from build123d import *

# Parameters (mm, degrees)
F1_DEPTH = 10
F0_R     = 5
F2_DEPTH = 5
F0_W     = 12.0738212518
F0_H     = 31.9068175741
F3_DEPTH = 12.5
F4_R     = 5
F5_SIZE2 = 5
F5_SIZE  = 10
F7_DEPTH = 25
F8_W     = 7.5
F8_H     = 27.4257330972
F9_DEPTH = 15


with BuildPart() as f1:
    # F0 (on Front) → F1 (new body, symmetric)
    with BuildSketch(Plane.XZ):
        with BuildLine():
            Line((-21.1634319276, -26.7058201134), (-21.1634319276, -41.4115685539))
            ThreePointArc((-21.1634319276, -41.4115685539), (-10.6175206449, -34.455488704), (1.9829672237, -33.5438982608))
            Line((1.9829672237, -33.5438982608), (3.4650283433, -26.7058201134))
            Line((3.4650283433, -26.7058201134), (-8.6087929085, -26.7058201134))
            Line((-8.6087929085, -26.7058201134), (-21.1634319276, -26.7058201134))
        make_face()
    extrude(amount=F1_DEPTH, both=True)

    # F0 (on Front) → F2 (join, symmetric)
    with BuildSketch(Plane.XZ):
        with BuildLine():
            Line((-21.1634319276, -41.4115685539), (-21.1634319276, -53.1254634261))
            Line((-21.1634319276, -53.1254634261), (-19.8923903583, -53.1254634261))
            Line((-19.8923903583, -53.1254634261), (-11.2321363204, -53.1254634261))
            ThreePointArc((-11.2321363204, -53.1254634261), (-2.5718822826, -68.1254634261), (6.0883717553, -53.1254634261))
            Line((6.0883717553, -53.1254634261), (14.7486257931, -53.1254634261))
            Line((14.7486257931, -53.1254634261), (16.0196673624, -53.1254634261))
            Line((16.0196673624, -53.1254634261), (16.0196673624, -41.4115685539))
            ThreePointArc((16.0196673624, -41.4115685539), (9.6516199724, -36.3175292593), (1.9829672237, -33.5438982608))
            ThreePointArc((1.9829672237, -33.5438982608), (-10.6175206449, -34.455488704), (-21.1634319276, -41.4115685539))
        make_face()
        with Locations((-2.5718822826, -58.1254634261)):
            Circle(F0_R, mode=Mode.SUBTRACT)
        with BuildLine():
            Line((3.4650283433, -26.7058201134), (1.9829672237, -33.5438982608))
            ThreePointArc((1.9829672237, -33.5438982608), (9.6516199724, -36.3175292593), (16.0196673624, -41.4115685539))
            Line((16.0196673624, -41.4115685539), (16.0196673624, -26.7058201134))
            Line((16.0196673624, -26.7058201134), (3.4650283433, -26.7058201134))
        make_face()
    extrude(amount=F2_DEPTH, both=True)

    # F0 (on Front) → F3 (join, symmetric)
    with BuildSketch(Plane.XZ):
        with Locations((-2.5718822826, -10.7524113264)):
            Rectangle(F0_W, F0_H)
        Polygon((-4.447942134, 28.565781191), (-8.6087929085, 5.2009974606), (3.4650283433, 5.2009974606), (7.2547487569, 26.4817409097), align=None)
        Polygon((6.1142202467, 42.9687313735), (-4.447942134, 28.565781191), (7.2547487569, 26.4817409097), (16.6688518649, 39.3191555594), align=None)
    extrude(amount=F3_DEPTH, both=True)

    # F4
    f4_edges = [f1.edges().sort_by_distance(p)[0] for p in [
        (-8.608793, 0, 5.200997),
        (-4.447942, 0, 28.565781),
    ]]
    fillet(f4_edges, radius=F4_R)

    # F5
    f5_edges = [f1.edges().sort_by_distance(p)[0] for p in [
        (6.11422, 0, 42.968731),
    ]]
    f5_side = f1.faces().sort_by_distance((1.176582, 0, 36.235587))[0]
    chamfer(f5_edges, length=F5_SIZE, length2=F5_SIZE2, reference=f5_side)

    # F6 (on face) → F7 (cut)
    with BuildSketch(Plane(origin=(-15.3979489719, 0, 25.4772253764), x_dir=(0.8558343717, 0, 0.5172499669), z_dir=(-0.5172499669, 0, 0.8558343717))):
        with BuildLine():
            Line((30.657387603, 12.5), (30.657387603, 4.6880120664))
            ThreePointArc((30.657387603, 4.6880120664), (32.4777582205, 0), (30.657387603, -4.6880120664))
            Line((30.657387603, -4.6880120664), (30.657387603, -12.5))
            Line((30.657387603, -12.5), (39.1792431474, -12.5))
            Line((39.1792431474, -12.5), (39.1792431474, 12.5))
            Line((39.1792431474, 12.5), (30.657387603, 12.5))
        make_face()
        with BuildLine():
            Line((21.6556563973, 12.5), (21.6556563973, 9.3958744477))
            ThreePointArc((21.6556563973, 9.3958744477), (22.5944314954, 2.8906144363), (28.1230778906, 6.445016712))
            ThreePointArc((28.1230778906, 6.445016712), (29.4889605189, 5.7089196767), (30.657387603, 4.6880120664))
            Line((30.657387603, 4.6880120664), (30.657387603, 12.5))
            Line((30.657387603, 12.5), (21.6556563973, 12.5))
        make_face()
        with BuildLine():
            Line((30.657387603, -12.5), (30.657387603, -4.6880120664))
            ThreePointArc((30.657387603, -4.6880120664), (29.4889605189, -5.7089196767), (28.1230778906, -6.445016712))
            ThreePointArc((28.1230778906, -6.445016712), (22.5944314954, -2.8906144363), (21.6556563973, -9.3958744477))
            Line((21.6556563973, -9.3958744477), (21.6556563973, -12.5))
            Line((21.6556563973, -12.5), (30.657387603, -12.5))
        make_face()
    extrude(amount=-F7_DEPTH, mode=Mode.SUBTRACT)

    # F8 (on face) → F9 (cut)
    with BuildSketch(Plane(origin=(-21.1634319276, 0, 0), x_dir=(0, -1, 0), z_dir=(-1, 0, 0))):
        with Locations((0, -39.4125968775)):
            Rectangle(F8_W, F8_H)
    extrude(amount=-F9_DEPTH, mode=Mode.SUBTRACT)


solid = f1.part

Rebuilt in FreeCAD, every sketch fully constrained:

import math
import FreeCAD as App
import Part
import Sketcher
from FreeCAD import Vector


def edges_at(feature, points):
    """Names of the edges that pass closest to the given points."""
    edges = feature.Shape.Edges
    near = lambda p: min(range(len(edges)), key=lambda i: edges[i].distToShape(Part.Vertex(*p))[0])
    return sorted({f"Edge{near(p) + 1}" for p in points})

doc = App.newDocument("Part")
params = doc.addObject("Spreadsheet::Sheet", "Params")
for row, (alias, value) in enumerate([
    ("sketch1_radius", "25 mm"),
    ("pad1_length", "20 mm"),
    ("sketch2_diameter", "10 mm"),
    ("sketch2_radius", "10 mm"),
    ("sketch2_radius2", "25 mm"),
    ("pad2_length", "10 mm"),
    ("pad3_length", "25 mm"),
    ("fillet_radius", "5 mm"),
    ("chamfer_size", "10 mm"),
    ("chamfer_size2", "5 mm"),
    ("sketch4_height", "25 mm"),
    ("pocket1_length", "25 mm"),
    ("sketch5_width", "7.5 mm"),
    ("pocket2_length", "15 mm"),
], start=1):
    params.set(f"A{row}", alias)
    params.set(f"B{row}", "=" + value)
    params.setAlias(f"B{row}", alias)

body = doc.addObject("PartDesign::Body", "Body")

# Sketch on XZ plane
sketch1 = body.newObject("Sketcher::SketchObject", "Sketch")
sketch1.AttachmentSupport = (doc.getObject("XZ_Plane"), [""])
sketch1.MapMode = "FlatFace"
sketch1.addGeometry(Part.LineSegment(Vector(-21, -27, 0), Vector(-21, -41, 0)), False)
sketch1.addGeometry(Part.ArcOfCircle(Part.Circle(Vector(-3, -58, 0), Vector(0, 0, 1), 25), math.radians(80), math.radians(138)), False)
sketch1.addGeometry(Part.LineSegment(Vector(2, -34, 0), Vector(3, -27, 0)), False)
sketch1.addGeometry(Part.LineSegment(Vector(3, -27, 0), Vector(-21, -27, 0)), False)
sketch1.addConstraint(Sketcher.Constraint("Coincident", 0, 2, 1, 2))
sketch1.addConstraint(Sketcher.Constraint("Coincident", 1, 1, 2, 1))
sketch1.addConstraint(Sketcher.Constraint("Coincident", 2, 2, 3, 1))
sketch1.addConstraint(Sketcher.Constraint("Coincident", 3, 2, 0, 1))
sketch1.addConstraint(Sketcher.Constraint("Vertical", 0))
sketch1.addConstraint(Sketcher.Constraint("Horizontal", 3))
sketch1.addConstraint(Sketcher.Constraint("Radius", 1, 25.0))
sketch1.addConstraint(Sketcher.Constraint("DistanceX", 3, 2, 3, 1, 24.62846))
sketch1.addConstraint(Sketcher.Constraint("DistanceY", 0, 2, 0, 1, 14.705748))
sketch1.addConstraint(Sketcher.Constraint("DistanceY", 1, 1, -1, 1, 33.543898))
sketch1.addConstraint(Sketcher.Constraint("DistanceX", 0, 2, 1, 1, 23.146399))
sketch1.addConstraint(Sketcher.Constraint("DistanceX", 0, 2, -1, 1, 21.163432))
sketch1.addConstraint(Sketcher.Constraint("DistanceY", 0, 2, -1, 1, 41.411569))
sketch1.setExpression("Constraints[6]", "Params.sketch1_radius")
pad1 = body.newObject("PartDesign::Pad", "Pad")
pad1.Profile = sketch1
pad1.setExpression("Length", "Params.pad1_length")
pad1.Midplane = True

# Sketch on XZ plane
sketch2 = body.newObject("Sketcher::SketchObject", "Sketch001")
sketch2.AttachmentSupport = (doc.getObject("XZ_Plane"), [""])
sketch2.MapMode = "FlatFace"
sketch2.addGeometry(Part.LineSegment(Vector(-21, -41, 0), Vector(-21, -53, 0)), False)
sketch2.addGeometry(Part.LineSegment(Vector(-21, -53, 0), Vector(-11, -53, 0)), False)
sketch2.addGeometry(Part.ArcOfCircle(Part.Circle(Vector(-3, -58, 0), Vector(0, 0, 1), 10), math.radians(150), math.radians(390)), False)
sketch2.addGeometry(Part.LineSegment(Vector(6, -53, 0), Vector(16, -53, 0)), False)
sketch2.addGeometry(Part.LineSegment(Vector(16, -53, 0), Vector(16, -27, 0)), False)
sketch2.addGeometry(Part.LineSegment(Vector(16, -27, 0), Vector(3, -27, 0)), False)
sketch2.addGeometry(Part.LineSegment(Vector(3, -27, 0), Vector(2, -34, 0)), False)
sketch2.addGeometry(Part.ArcOfCircle(Part.Circle(Vector(-3, -58, 0), Vector(0, 0, 1), 25), math.radians(80), math.radians(138)), False)
sketch2.addGeometry(Part.Circle(Vector(-3, -58, 0), Vector(0, 0, 1), 5), False)
sketch2.addConstraint(Sketcher.Constraint("Coincident", 0, 2, 1, 1))
sketch2.addConstraint(Sketcher.Constraint("Coincident", 1, 2, 2, 1))
sketch2.addConstraint(Sketcher.Constraint("Coincident", 2, 2, 3, 1))
sketch2.addConstraint(Sketcher.Constraint("Coincident", 3, 2, 4, 1))
sketch2.addConstraint(Sketcher.Constraint("Coincident", 4, 2, 5, 1))
sketch2.addConstraint(Sketcher.Constraint("Coincident", 5, 2, 6, 1))
sketch2.addConstraint(Sketcher.Constraint("Coincident", 6, 2, 7, 1))
sketch2.addConstraint(Sketcher.Constraint("Coincident", 7, 2, 0, 1))
sketch2.addConstraint(Sketcher.Constraint("Vertical", 0))
sketch2.addConstraint(Sketcher.Constraint("Horizontal", 1))
sketch2.addConstraint(Sketcher.Constraint("Horizontal", 3))
sketch2.addConstraint(Sketcher.Constraint("Vertical", 4))
sketch2.addConstraint(Sketcher.Constraint("Horizontal", 5))
sketch2.addConstraint(Sketcher.Constraint("Coincident", 7, 3, 2, 3))
sketch2.addConstraint(Sketcher.Constraint("Coincident", 8, 3, 2, 3))
sketch2.addConstraint(Sketcher.Constraint("Horizontal", 1, 2, 2, 2))
sketch2.addConstraint(Sketcher.Constraint("Equal", 1, 3))
sketch2.addConstraint(Sketcher.Constraint("Diameter", 8, 10.0))
sketch2.addConstraint(Sketcher.Constraint("Radius", 2, 10.0))
sketch2.addConstraint(Sketcher.Constraint("Radius", 7, 25.0))
sketch2.addConstraint(Sketcher.Constraint("DistanceY", 2, 3, 0, 2, 5.0))
sketch2.addConstraint(Sketcher.Constraint("DistanceX", 5, 2, 5, 1, 12.554639))
sketch2.addConstraint(Sketcher.Constraint("DistanceY", 6, 2, -1, 1, 33.543898))
sketch2.addConstraint(Sketcher.Constraint("DistanceX", 6, 2, 4, 2, 14.0367))
sketch2.addConstraint(Sketcher.Constraint("DistanceX", 7, 2, 6, 2, 23.146399))
sketch2.addConstraint(Sketcher.Constraint("DistanceY", 4, 1, 4, 2, 26.419643))
sketch2.addConstraint(Sketcher.Constraint("DistanceX", 0, 2, -1, 1, 21.163432))
sketch2.setExpression("Constraints[17]", "Params.sketch2_diameter")
sketch2.setExpression("Constraints[18]", "Params.sketch2_radius")
sketch2.setExpression("Constraints[19]", "Params.sketch2_radius2")
pad2 = body.newObject("PartDesign::Pad", "Pad001")
pad2.Profile = sketch2
pad2.setExpression("Length", "Params.pad2_length")
pad2.Midplane = True

# Sketch on XZ plane
sketch3 = body.newObject("Sketcher::SketchObject", "Sketch002")
sketch3.AttachmentSupport = (doc.getObject("XZ_Plane"), [""])
sketch3.MapMode = "FlatFace"
sketch3.addGeometry(Part.LineSegment(Vector(-9, 5, 0), Vector(-9, -27, 0)), False)
sketch3.addGeometry(Part.LineSegment(Vector(-9, -27, 0), Vector(3, -27, 0)), False)
sketch3.addGeometry(Part.LineSegment(Vector(3, -27, 0), Vector(3, 5, 0)), False)
sketch3.addGeometry(Part.LineSegment(Vector(3, 5, 0), Vector(7, 26, 0)), False)
sketch3.addGeometry(Part.LineSegment(Vector(7, 26, 0), Vector(17, 39, 0)), False)
sketch3.addGeometry(Part.LineSegment(Vector(17, 39, 0), Vector(6, 43, 0)), False)
sketch3.addGeometry(Part.LineSegment(Vector(6, 43, 0), Vector(-4, 29, 0)), False)
sketch3.addGeometry(Part.LineSegment(Vector(-4, 29, 0), Vector(-9, 5, 0)), False)
sketch3.addConstraint(Sketcher.Constraint("Coincident", 0, 2, 1, 1))
sketch3.addConstraint(Sketcher.Constraint("Coincident", 1, 2, 2, 1))
sketch3.addConstraint(Sketcher.Constraint("Coincident", 2, 2, 3, 1))
sketch3.addConstraint(Sketcher.Constraint("Coincident", 3, 2, 4, 1))
sketch3.addConstraint(Sketcher.Constraint("Coincident", 4, 2, 5, 1))
sketch3.addConstraint(Sketcher.Constraint("Coincident", 5, 2, 6, 1))
sketch3.addConstraint(Sketcher.Constraint("Coincident", 6, 2, 7, 1))
sketch3.addConstraint(Sketcher.Constraint("Coincident", 7, 2, 0, 1))
sketch3.addConstraint(Sketcher.Constraint("Vertical", 0))
sketch3.addConstraint(Sketcher.Constraint("Horizontal", 1))
sketch3.addConstraint(Sketcher.Constraint("Vertical", 2))
sketch3.addConstraint(Sketcher.Constraint("Parallel", 4, 6))
sketch3.addConstraint(Sketcher.Constraint("Parallel", 3, 7))
sketch3.addConstraint(Sketcher.Constraint("Horizontal", 2, 2, 7, 2))
sketch3.addConstraint(Sketcher.Constraint("DistanceX", 1, 1, 1, 2, 12.073821))
sketch3.addConstraint(Sketcher.Constraint("DistanceY", 0, 2, 6, 2, 55.271601))
sketch3.addConstraint(Sketcher.Constraint("Distance", 3, 21.61555))
sketch3.addConstraint(Sketcher.Constraint("Distance", 6, 17.86069))
sketch3.addConstraint(Sketcher.Constraint("Distance", 7, 23.732379))
sketch3.addConstraint(Sketcher.Constraint("DistanceY", 0, 2, 0, 1, 31.906818))
sketch3.addConstraint(Sketcher.Constraint("DistanceY", 0, 2, -1, 1, 26.70582))
sketch3.addConstraint(Sketcher.Constraint("DistanceX", -1, 1, 1, 2, 3.465028))
sketch3.addConstraint(Sketcher.Constraint("DistanceX", -1, 1, 4, 2, 16.668852))
sketch3.addConstraint(Sketcher.Constraint("DistanceX", -1, 1, 5, 2, 6.11422))
pad3 = body.newObject("PartDesign::Pad", "Pad002")
pad3.Profile = sketch3
pad3.setExpression("Length", "Params.pad3_length")
pad3.Midplane = True
doc.recompute()

fillet = body.newObject("PartDesign::Fillet", "Fillet")
fillet.Base = (pad3, edges_at(pad3, [(-8.609, 0, 5.201), (-4.448, 0, 28.566)]))
fillet.setExpression("Radius", "Params.fillet_radius")
doc.recompute()

chamfer = body.newObject("PartDesign::Chamfer", "Chamfer")
chamfer.Base = (fillet, edges_at(fillet, [(6.114, 0, 42.969)]))
chamfer.ChamferType = "Two distances"
chamfer.setExpression("Size", "Params.chamfer_size")
chamfer.setExpression("Size2", "Params.chamfer_size2")

# Sketch on an angled plane
sketch4 = body.newObject("Sketcher::SketchObject", "Sketch003")
sketch4.Placement = App.Placement(Vector(-15.397949, 0, 25.477225), App.Rotation(Vector(0.855834372, 0, 0.517249967), Vector(0, 1.000000001, 0), Vector(-0.517249967, 0, 0.855834372), "ZXY"))
sketch4.addGeometry(Part.ArcOfCircle(Part.Circle(Vector(25.5, 0, 0), Vector(0, 0, 1), 6.9), math.radians(-42), math.radians(42)), False)
sketch4.addGeometry(Part.ArcOfCircle(Part.Circle(Vector(25.5, 0, 0), Vector(0, 0, 1), 6.9), math.radians(-68), math.radians(-42)), False)
sketch4.addGeometry(Part.ArcOfCircle(Part.Circle(Vector(24.2, -6.4, 0), Vector(0, 0, 1), 3.9), math.radians(0), math.radians(229)), False)
sketch4.addGeometry(Part.LineSegment(Vector(21.7, -9.4, 0), Vector(21.7, -12.5, 0)), False)
sketch4.addGeometry(Part.LineSegment(Vector(21.7, -12.5, 0), Vector(39.2, -12.5, 0)), False)
sketch4.addGeometry(Part.LineSegment(Vector(39.2, -12.5, 0), Vector(39.2, 12.5, 0)), False)
sketch4.addGeometry(Part.LineSegment(Vector(39.2, 12.5, 0), Vector(21.7, 12.5, 0)), False)
sketch4.addGeometry(Part.LineSegment(Vector(21.7, 12.5, 0), Vector(21.7, 9.4, 0)), False)
sketch4.addGeometry(Part.ArcOfCircle(Part.Circle(Vector(24.2, 6.4, 0), Vector(0, 0, 1), 3.9), math.radians(131), math.radians(360)), False)
sketch4.addGeometry(Part.ArcOfCircle(Part.Circle(Vector(25.5, 0, 0), Vector(0, 0, 1), 6.9), math.radians(42), math.radians(68)), False)
sketch4.addConstraint(Sketcher.Constraint("Tangent", 0, 1, 1, 2))
sketch4.addConstraint(Sketcher.Constraint("Coincident", 1, 1, 2, 1))
sketch4.addConstraint(Sketcher.Constraint("Coincident", 2, 2, 3, 1))
sketch4.addConstraint(Sketcher.Constraint("Coincident", 3, 2, 4, 1))
sketch4.addConstraint(Sketcher.Constraint("Coincident", 4, 2, 5, 1))
sketch4.addConstraint(Sketcher.Constraint("Coincident", 5, 2, 6, 1))
sketch4.addConstraint(Sketcher.Constraint("Coincident", 6, 2, 7, 1))
sketch4.addConstraint(Sketcher.Constraint("Coincident", 7, 2, 8, 1))
sketch4.addConstraint(Sketcher.Constraint("Coincident", 8, 2, 9, 2))
sketch4.addConstraint(Sketcher.Constraint("Tangent", 9, 1, 0, 2))
sketch4.addConstraint(Sketcher.Constraint("Vertical", 3))
sketch4.addConstraint(Sketcher.Constraint("Horizontal", 4))
sketch4.addConstraint(Sketcher.Constraint("Vertical", 5))
sketch4.addConstraint(Sketcher.Constraint("Horizontal", 6))
sketch4.addConstraint(Sketcher.Constraint("Vertical", 7))
sketch4.addConstraint(Sketcher.Constraint("Equal", 0, 1))
sketch4.addConstraint(Sketcher.Constraint("Equal", 2, 8))
sketch4.addConstraint(Sketcher.Constraint("Equal", 1, 9))
sketch4.addConstraint(Sketcher.Constraint("Symmetric", 2, 3, 8, 3, -1))
sketch4.addConstraint(Sketcher.Constraint("Symmetric", 3, 2, 6, 2, -1))
sketch4.addConstraint(Sketcher.Constraint("Symmetric", 0, 1, 9, 1, -1))
sketch4.addConstraint(Sketcher.Constraint("Horizontal", 2, 3, 1, 1))
sketch4.addConstraint(Sketcher.Constraint("DistanceY", 5, 1, 5, 2, 25.0))
sketch4.addConstraint(Sketcher.Constraint("Radius", 0, 6.946719))
sketch4.addConstraint(Sketcher.Constraint("Radius", 2, 3.906897))
sketch4.addConstraint(Sketcher.Constraint("DistanceX", 4, 1, 4, 2, 17.523587))
sketch4.addConstraint(Sketcher.Constraint("DistanceY", 3, 2, 3, 1, 3.104126))
sketch4.addConstraint(Sketcher.Constraint("DistanceX", -1, 1, 0, 3, 25.531039))
sketch4.addConstraint(Sketcher.Constraint("DistanceX", -1, 1, 2, 3, 24.216181))
sketch4.addConstraint(Sketcher.Constraint("DistanceX", 1, 3, 0, 1, 5.126348))
sketch4.setExpression("Constraints[22]", "Params.sketch4_height")
pocket1 = body.newObject("PartDesign::Pocket", "Pocket")
pocket1.Profile = sketch4
pocket1.setExpression("Length", "Params.pocket1_length")

# Sketch on YZ plane
sketch5 = body.newObject("Sketcher::SketchObject", "Sketch004")
sketch5.AttachmentSupport = (doc.getObject("YZ_Plane"), [""])
sketch5.MapMode = "FlatFace"
sketch5.AttachmentOffset = App.Placement(Vector(0, 0, -21.163432), App.Rotation())
sketch5.addGeometry(Part.LineSegment(Vector(4, -26, 0), Vector(4, -53, 0)), False)
sketch5.addGeometry(Part.LineSegment(Vector(4, -53, 0), Vector(-4, -53, 0)), False)
sketch5.addGeometry(Part.LineSegment(Vector(-4, -53, 0), Vector(-4, -26, 0)), False)
sketch5.addGeometry(Part.LineSegment(Vector(-4, -26, 0), Vector(4, -26, 0)), False)
sketch5.addConstraint(Sketcher.Constraint("Coincident", 0, 2, 1, 1))
sketch5.addConstraint(Sketcher.Constraint("Coincident", 1, 2, 2, 1))
sketch5.addConstraint(Sketcher.Constraint("Coincident", 2, 2, 3, 1))
sketch5.addConstraint(Sketcher.Constraint("Coincident", 3, 2, 0, 1))
sketch5.addConstraint(Sketcher.Constraint("Vertical", 0))
sketch5.addConstraint(Sketcher.Constraint("Horizontal", 1))
sketch5.addConstraint(Sketcher.Constraint("Vertical", 2))
sketch5.addConstraint(Sketcher.Constraint("Horizontal", 3))
sketch5.addConstraint(Sketcher.Constraint("DistanceX", 1, 2, 1, 1, 7.5))
sketch5.addConstraint(Sketcher.Constraint("DistanceX", -1, 1, 0, 2, 3.75))
sketch5.addConstraint(Sketcher.Constraint("DistanceY", 0, 2, 0, 1, 27.425733))
sketch5.addConstraint(Sketcher.Constraint("DistanceY", 2, 2, -1, 1, 25.69973))
sketch5.setExpression("Constraints[8]", "Params.sketch5_width")
pocket2 = body.newObject("PartDesign::Pocket", "Pocket001")
pocket2.Profile = sketch5
pocket2.setExpression("Length", "Params.pocket2_length")
pocket2.Reversed = True

doc.recompute()
